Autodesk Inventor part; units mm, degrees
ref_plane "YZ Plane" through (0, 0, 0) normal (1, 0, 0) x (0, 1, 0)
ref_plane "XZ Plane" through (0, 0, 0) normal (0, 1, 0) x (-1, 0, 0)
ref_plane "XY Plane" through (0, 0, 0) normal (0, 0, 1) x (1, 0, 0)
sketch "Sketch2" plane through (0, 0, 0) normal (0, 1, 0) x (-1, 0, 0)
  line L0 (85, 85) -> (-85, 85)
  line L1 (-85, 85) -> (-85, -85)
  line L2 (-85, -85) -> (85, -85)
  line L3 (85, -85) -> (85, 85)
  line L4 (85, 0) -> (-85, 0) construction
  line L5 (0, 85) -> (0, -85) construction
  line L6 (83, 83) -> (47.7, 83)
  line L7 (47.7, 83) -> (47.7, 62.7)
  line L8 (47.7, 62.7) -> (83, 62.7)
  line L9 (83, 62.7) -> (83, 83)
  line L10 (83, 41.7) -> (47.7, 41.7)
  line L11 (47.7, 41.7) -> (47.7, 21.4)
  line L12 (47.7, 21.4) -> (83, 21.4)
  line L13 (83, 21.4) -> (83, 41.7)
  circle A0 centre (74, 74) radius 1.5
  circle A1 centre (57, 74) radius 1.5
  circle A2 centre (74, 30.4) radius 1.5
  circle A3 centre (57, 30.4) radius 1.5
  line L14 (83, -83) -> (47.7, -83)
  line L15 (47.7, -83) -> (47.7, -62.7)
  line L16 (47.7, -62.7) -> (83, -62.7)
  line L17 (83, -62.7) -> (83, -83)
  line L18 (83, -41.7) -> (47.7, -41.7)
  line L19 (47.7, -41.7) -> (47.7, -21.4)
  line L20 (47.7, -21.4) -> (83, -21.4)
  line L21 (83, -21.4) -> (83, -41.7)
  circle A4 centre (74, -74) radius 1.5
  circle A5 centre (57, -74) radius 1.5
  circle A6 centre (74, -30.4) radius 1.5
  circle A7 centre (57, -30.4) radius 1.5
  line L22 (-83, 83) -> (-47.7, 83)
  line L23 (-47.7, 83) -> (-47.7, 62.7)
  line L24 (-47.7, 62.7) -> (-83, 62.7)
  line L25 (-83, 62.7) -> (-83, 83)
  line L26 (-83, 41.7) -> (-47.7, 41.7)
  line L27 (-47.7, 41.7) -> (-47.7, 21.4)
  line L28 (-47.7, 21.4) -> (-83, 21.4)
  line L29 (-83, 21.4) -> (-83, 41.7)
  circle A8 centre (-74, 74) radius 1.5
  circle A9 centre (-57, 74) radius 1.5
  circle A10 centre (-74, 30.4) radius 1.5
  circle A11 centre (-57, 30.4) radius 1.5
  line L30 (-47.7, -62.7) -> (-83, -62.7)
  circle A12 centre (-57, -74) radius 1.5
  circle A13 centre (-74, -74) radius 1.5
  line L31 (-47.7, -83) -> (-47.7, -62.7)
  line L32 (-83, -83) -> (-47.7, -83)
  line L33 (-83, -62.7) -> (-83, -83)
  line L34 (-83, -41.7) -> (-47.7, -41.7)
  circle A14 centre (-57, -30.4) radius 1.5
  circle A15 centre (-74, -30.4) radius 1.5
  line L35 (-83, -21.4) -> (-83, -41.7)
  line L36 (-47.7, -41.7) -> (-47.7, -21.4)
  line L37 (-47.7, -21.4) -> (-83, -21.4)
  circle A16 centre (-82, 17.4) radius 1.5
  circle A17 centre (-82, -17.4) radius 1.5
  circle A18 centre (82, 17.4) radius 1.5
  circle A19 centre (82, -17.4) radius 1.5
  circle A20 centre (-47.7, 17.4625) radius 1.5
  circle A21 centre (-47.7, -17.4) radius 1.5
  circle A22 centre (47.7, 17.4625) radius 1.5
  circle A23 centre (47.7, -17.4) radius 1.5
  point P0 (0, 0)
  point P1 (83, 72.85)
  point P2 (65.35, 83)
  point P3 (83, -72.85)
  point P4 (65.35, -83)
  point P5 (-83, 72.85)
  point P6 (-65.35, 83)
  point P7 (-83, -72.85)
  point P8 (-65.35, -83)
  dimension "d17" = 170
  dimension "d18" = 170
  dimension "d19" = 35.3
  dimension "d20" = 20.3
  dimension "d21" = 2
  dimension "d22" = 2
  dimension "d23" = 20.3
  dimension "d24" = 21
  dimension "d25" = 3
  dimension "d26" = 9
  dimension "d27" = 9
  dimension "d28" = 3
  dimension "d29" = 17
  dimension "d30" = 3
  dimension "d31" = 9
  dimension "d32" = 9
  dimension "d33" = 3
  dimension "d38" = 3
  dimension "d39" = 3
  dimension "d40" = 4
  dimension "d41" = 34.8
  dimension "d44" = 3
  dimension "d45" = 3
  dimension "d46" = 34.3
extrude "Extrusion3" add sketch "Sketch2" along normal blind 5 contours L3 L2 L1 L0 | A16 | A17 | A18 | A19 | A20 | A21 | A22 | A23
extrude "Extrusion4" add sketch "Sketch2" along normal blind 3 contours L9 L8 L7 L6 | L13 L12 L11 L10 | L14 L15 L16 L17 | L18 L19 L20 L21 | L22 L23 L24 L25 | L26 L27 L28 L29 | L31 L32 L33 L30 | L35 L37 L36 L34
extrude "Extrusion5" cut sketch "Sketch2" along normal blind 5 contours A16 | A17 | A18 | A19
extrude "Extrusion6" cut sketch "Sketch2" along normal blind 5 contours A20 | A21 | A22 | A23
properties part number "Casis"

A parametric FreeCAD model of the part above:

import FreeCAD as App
import Part
import Sketcher

V = App.Vector
Q = App.Units.Quantity

doc = App.newDocument("Part")
body = doc.addObject("PartDesign::Body", "Body")

sketch1 = body.newObject("Sketcher::SketchObject", "Sketch")
sketch1.AttachmentSupport = (doc.getObject("XZ_Plane"), [""])
sketch1.MapMode = "FlatFace"
sketch1.addGeometry([
    Part.LineSegment(V(-85, -85, 0), V(-85, 85, 0)),
    Part.LineSegment(V(-85, 85, 0), V(85, 85, 0)),
    Part.LineSegment(V(85, 85, 0), V(85, -85, 0)),
    Part.LineSegment(V(85, -85, 0), V(-85, -85, 0)),
    Part.LineSegment(V(83, -63, 0), V(48, -63, 0)),
    Part.LineSegment(V(48, -63, 0), V(48, -83, 0)),
    Part.LineSegment(V(48, -83, 0), V(83, -83, 0)),
    Part.LineSegment(V(83, -83, 0), V(83, -63, 0)),
    Part.LineSegment(V(48, -42, 0), V(83, -42, 0)),
    Part.LineSegment(V(83, -42, 0), V(83, -21, 0)),
    Part.LineSegment(V(83, -21, 0), V(48, -21, 0)),
    Part.LineSegment(V(48, -21, 0), V(48, -42, 0)),
    Part.LineSegment(V(-83, -63, 0), V(-83, -83, 0)),
    Part.LineSegment(V(-83, -83, 0), V(-48, -83, 0)),
    Part.LineSegment(V(-48, -83, 0), V(-48, -63, 0)),
    Part.LineSegment(V(-48, -63, 0), V(-83, -63, 0)),
    Part.LineSegment(V(-83, -21, 0), V(-83, -42, 0)),
    Part.LineSegment(V(-83, -42, 0), V(-48, -42, 0)),
    Part.LineSegment(V(-48, -42, 0), V(-48, -21, 0)),
    Part.LineSegment(V(-48, -21, 0), V(-83, -21, 0)),
    Part.LineSegment(V(83, 21, 0), V(83, 42, 0)),
    Part.LineSegment(V(83, 42, 0), V(48, 42, 0)),
    Part.LineSegment(V(48, 42, 0), V(48, 21, 0)),
    Part.LineSegment(V(48, 21, 0), V(83, 21, 0)),
    Part.LineSegment(V(83, 63, 0), V(83, 83, 0)),
    Part.LineSegment(V(83, 83, 0), V(48, 83, 0)),
    Part.LineSegment(V(48, 83, 0), V(48, 63, 0)),
    Part.LineSegment(V(48, 63, 0), V(83, 63, 0)),
    Part.LineSegment(V(-48, 42, 0), V(-83, 42, 0)),
    Part.LineSegment(V(-83, 42, 0), V(-83, 21, 0)),
    Part.LineSegment(V(-83, 21, 0), V(-48, 21, 0)),
    Part.LineSegment(V(-48, 21, 0), V(-48, 42, 0)),
    Part.LineSegment(V(-48, 83, 0), V(-83, 83, 0)),
    Part.LineSegment(V(-83, 83, 0), V(-83, 63, 0)),
    Part.LineSegment(V(-83, 63, 0), V(-48, 63, 0)),
    Part.LineSegment(V(-48, 63, 0), V(-48, 83, 0)),
], False)
sketch1.addConstraint([
    Sketcher.Constraint("Coincident", 0, 2, 1, 1),
    Sketcher.Constraint("Coincident", 1, 2, 2, 1),
    Sketcher.Constraint("Coincident", 2, 2, 3, 1),
    Sketcher.Constraint("Coincident", 3, 2, 0, 1),
    Sketcher.Constraint("Coincident", 4, 2, 5, 1),
    Sketcher.Constraint("Coincident", 5, 2, 6, 1),
    Sketcher.Constraint("Coincident", 6, 2, 7, 1),
    Sketcher.Constraint("Coincident", 7, 2, 4, 1),
    Sketcher.Constraint("Coincident", 8, 2, 9, 1),
    Sketcher.Constraint("Coincident", 9, 2, 10, 1),
    Sketcher.Constraint("Coincident", 10, 2, 11, 1),
    Sketcher.Constraint("Coincident", 11, 2, 8, 1),
    Sketcher.Constraint("Coincident", 12, 2, 13, 1),
    Sketcher.Constraint("Coincident", 13, 2, 14, 1),
    Sketcher.Constraint("Coincident", 14, 2, 15, 1),
    Sketcher.Constraint("Coincident", 15, 2, 12, 1),
    Sketcher.Constraint("Coincident", 16, 2, 17, 1),
    Sketcher.Constraint("Coincident", 17, 2, 18, 1),
    Sketcher.Constraint("Coincident", 18, 2, 19, 1),
    Sketcher.Constraint("Coincident", 19, 2, 16, 1),
    Sketcher.Constraint("Coincident", 20, 2, 21, 1),
    Sketcher.Constraint("Coincident", 21, 2, 22, 1),
    Sketcher.Constraint("Coincident", 22, 2, 23, 1),
    Sketcher.Constraint("Coincident", 23, 2, 20, 1),
    Sketcher.Constraint("Coincident", 24, 2, 25, 1),
    Sketcher.Constraint("Coincident", 25, 2, 26, 1),
    Sketcher.Constraint("Coincident", 26, 2, 27, 1),
    Sketcher.Constraint("Coincident", 27, 2, 24, 1),
    Sketcher.Constraint("Coincident", 28, 2, 29, 1),
    Sketcher.Constraint("Coincident", 29, 2, 30, 1),
    Sketcher.Constraint("Coincident", 30, 2, 31, 1),
    Sketcher.Constraint("Coincident", 31, 2, 28, 1),
    Sketcher.Constraint("Coincident", 32, 2, 33, 1),
    Sketcher.Constraint("Coincident", 33, 2, 34, 1),
    Sketcher.Constraint("Coincident", 34, 2, 35, 1),
    Sketcher.Constraint("Coincident", 35, 2, 32, 1),
    Sketcher.Constraint("Vertical", 0),
    Sketcher.Constraint("Horizontal", 1),
    Sketcher.Constraint("Vertical", 2),
    Sketcher.Constraint("Horizontal", 3),
    Sketcher.Constraint("Horizontal", 4),
    Sketcher.Constraint("Vertical", 5),
    Sketcher.Constraint("Horizontal", 6),
    Sketcher.Constraint("Vertical", 7),
    Sketcher.Constraint("Horizontal", 8),
    Sketcher.Constraint("Vertical", 9),
    Sketcher.Constraint("Horizontal", 10),
    Sketcher.Constraint("Vertical", 11),
    Sketcher.Constraint("Vertical", 12),
    Sketcher.Constraint("Horizontal", 13),
    Sketcher.Constraint("Vertical", 14),
    Sketcher.Constraint("Horizontal", 15),
    Sketcher.Constraint("Vertical", 16),
    Sketcher.Constraint("Horizontal", 17),
    Sketcher.Constraint("Vertical", 18),
    Sketcher.Constraint("Horizontal", 19),
    Sketcher.Constraint("Vertical", 20),
    Sketcher.Constraint("Horizontal", 21),
    Sketcher.Constraint("Vertical", 22),
    Sketcher.Constraint("Horizontal", 23),
    Sketcher.Constraint("Vertical", 24),
    Sketcher.Constraint("Horizontal", 25),
    Sketcher.Constraint("Vertical", 26),
    Sketcher.Constraint("Horizontal", 27),
    Sketcher.Constraint("Horizontal", 28),
    Sketcher.Constraint("Vertical", 29),
    Sketcher.Constraint("Horizontal", 30),
    Sketcher.Constraint("Vertical", 31),
    Sketcher.Constraint("Horizontal", 32),
    Sketcher.Constraint("Vertical", 33),
    Sketcher.Constraint("Horizontal", 34),
    Sketcher.Constraint("Vertical", 35),
    Sketcher.Constraint("Symmetric", 0, 2, 2, 2, -1, 1),
    Sketcher.Constraint("Symmetric", 16, 2, 20, 2, -1, 1),
    Sketcher.Constraint("Symmetric", 18, 2, 22, 2, -1, 1),
    Sketcher.Constraint("Symmetric", 12, 2, 24, 2, -1, 1),
    Sketcher.Constraint("Symmetric", 14, 2, 26, 2, -1, 1),
    Sketcher.Constraint("Symmetric", 8, 2, 28, 2, -1, 1),
    Sketcher.Constraint("Symmetric", 10, 2, 30, 2, -1, 1),
    Sketcher.Constraint("Symmetric", 6, 2, 32, 2, -1, 1),
    Sketcher.Constraint("Symmetric", 4, 2, 34, 2, -1, 1),
    Sketcher.Constraint("Symmetric", 6, 2, 12, 2, -2),
    Sketcher.Constraint("Symmetric", 4, 2, 14, 2, -2),
    Sketcher.Constraint("Symmetric", 8, 2, 16, 2, -2),
    Sketcher.Constraint("Symmetric", 10, 2, 18, 2, -2),
    Sketcher.Constraint("Vertical", 7, 2, 8, 2),
    Sketcher.Constraint("Vertical", 5, 2, 10, 2),
    Sketcher.Constraint("Equal", 3, 0),
    Sketcher.Constraint("Equal", 7, 9),
    Sketcher.Constraint("DistanceX", 1, 1, 1, 2, Q("170 mm")),
    Sketcher.Constraint("DistanceX", 4, 2, 4, 1, Q("35.3 mm")),
    Sketcher.Constraint("DistanceY", 5, 2, 5, 1, Q("20.3 mm")),
    Sketcher.Constraint("DistanceY", 2, 2, 5, 2, Q("2 mm")),
    Sketcher.Constraint("DistanceX", 6, 2, 2, 2, Q("2 mm")),
    Sketcher.Constraint("DistanceY", 7, 2, 8, 2, Q("21 mm")),
])
pad1 = body.newObject("PartDesign::Pad", "Pad")
pad1.Profile = sketch1
pad1.Length = 5
pad1.Reversed = True

sketch2 = body.newObject("Sketcher::SketchObject", "Sketch001")
sketch2.AttachmentSupport = (doc.getObject("XZ_Plane"), [""])
sketch2.MapMode = "FlatFace"
sketch2.addGeometry([
    Part.LineSegment(V(-83, 62.7, 0), V(-83, 83, 0)),
    Part.LineSegment(V(-83, 83, 0), V(-47.7, 83, 0)),
    Part.LineSegment(V(-47.7, 83, 0), V(-47.7, 62.7, 0)),
    Part.LineSegment(V(-47.7, 62.7, 0), V(-83, 62.7, 0)),
    Part.Circle(V(-57, 74, 0), V(0, 0, 1), 1.5),
    Part.Circle(V(-74, 74, 0), V(0, 0, 1), 1.5),
    Part.LineSegment(V(-83, 21.4, 0), V(-83, 41.7, 0)),
    Part.LineSegment(V(-83, 41.7, 0), V(-47.7, 41.7, 0)),
    Part.LineSegment(V(-47.7, 41.7, 0), V(-47.7, 21.4, 0)),
    Part.LineSegment(V(-47.7, 21.4, 0), V(-83, 21.4, 0)),
    Part.Circle(V(-57, 30.4, 0), V(0, 0, 1), 1.5),
    Part.Circle(V(-74, 30.4, 0), V(0, 0, 1), 1.5),
    Part.LineSegment(V(-47.7, -83, 0), V(-83, -83, 0)),
    Part.LineSegment(V(-83, -83, 0), V(-83, -62.7, 0)),
    Part.LineSegment(V(-83, -62.7, 0), V(-47.7, -62.7, 0)),
    Part.LineSegment(V(-47.7, -62.7, 0), V(-47.7, -83, 0)),
    Part.Circle(V(-57, -74, 0), V(0, 0, 1), 1.5),
    Part.Circle(V(-74, -74, 0), V(0, 0, 1), 1.5),
    Part.LineSegment(V(-47.7, -41.7, 0), V(-83, -41.7, 0)),
    Part.LineSegment(V(-83, -41.7, 0), V(-83, -21.4, 0)),
    Part.LineSegment(V(-83, -21.4, 0), V(-47.7, -21.4, 0)),
    Part.LineSegment(V(-47.7, -21.4, 0), V(-47.7, -41.7, 0)),
    Part.Circle(V(-57, -30.4, 0), V(0, 0, 1), 1.5),
    Part.Circle(V(-74, -30.4, 0), V(0, 0, 1), 1.5),
    Part.LineSegment(V(47.7, 83, 0), V(83, 83, 0)),
    Part.LineSegment(V(83, 83, 0), V(83, 62.7, 0)),
    Part.LineSegment(V(83, 62.7, 0), V(47.7, 62.7, 0)),
    Part.LineSegment(V(47.7, 62.7, 0), V(47.7, 83, 0)),
    Part.Circle(V(74, 74, 0), V(0, 0, 1), 1.5),
    Part.Circle(V(57, 74, 0), V(0, 0, 1), 1.5),
    Part.LineSegment(V(47.7, 41.7, 0), V(83, 41.7, 0)),
    Part.LineSegment(V(83, 41.7, 0), V(83, 21.4, 0)),
    Part.LineSegment(V(83, 21.4, 0), V(47.7, 21.4, 0)),
    Part.LineSegment(V(47.7, 21.4, 0), V(47.7, 41.7, 0)),
    Part.Circle(V(74, 30.4, 0), V(0, 0, 1), 1.5),
    Part.Circle(V(57, 30.4, 0), V(0, 0, 1), 1.5),
    Part.LineSegment(V(47.7, -83, 0), V(47.7, -62.7, 0)),
    Part.LineSegment(V(47.7, -62.7, 0), V(83, -62.7, 0)),
    Part.LineSegment(V(83, -62.7, 0), V(83, -83, 0)),
    Part.LineSegment(V(83, -83, 0), V(47.7, -83, 0)),
    Part.Circle(V(74, -74, 0), V(0, 0, 1), 1.5),
    Part.Circle(V(57, -74, 0), V(0, 0, 1), 1.5),
    Part.LineSegment(V(83, -21.4, 0), V(83, -41.7, 0)),
    Part.LineSegment(V(83, -41.7, 0), V(47.7, -41.7, 0)),
    Part.LineSegment(V(47.7, -41.7, 0), V(47.7, -21.4, 0)),
    Part.LineSegment(V(47.7, -21.4, 0), V(83, -21.4, 0)),
    Part.Circle(V(74, -30.4, 0), V(0, 0, 1), 1.5),
    Part.Circle(V(57, -30.4, 0), V(0, 0, 1), 1.5),
], False)
sketch2.addConstraint([
    Sketcher.Constraint("Coincident", 0, 2, 1, 1),
    Sketcher.Constraint("Coincident", 1, 2, 2, 1),
    Sketcher.Constraint("Coincident", 2, 2, 3, 1),
    Sketcher.Constraint("Coincident", 3, 2, 0, 1),
    Sketcher.Constraint("Coincident", 6, 2, 7, 1),
    Sketcher.Constraint("Coincident", 7, 2, 8, 1),
    Sketcher.Constraint("Coincident", 8, 2, 9, 1),
    Sketcher.Constraint("Coincident", 9, 2, 6, 1),
    Sketcher.Constraint("Coincident", 12, 2, 13, 1),
    Sketcher.Constraint("Coincident", 13, 2, 14, 1),
    Sketcher.Constraint("Coincident", 14, 2, 15, 1),
    Sketcher.Constraint("Coincident", 15, 2, 12, 1),
    Sketcher.Constraint("Coincident", 18, 2, 19, 1),
    Sketcher.Constraint("Coincident", 19, 2, 20, 1),
    Sketcher.Constraint("Coincident", 20, 2, 21, 1),
    Sketcher.Constraint("Coincident", 21, 2, 18, 1),
    Sketcher.Constraint("Coincident", 24, 2, 25, 1),
    Sketcher.Constraint("Coincident", 25, 2, 26, 1),
    Sketcher.Constraint("Coincident", 26, 2, 27, 1),
    Sketcher.Constraint("Coincident", 27, 2, 24, 1),
    Sketcher.Constraint("Coincident", 30, 2, 31, 1),
    Sketcher.Constraint("Coincident", 31, 2, 32, 1),
    Sketcher.Constraint("Coincident", 32, 2, 33, 1),
    Sketcher.Constraint("Coincident", 33, 2, 30, 1),
    Sketcher.Constraint("Coincident", 36, 2, 37, 1),
    Sketcher.Constraint("Coincident", 37, 2, 38, 1),
    Sketcher.Constraint("Coincident", 38, 2, 39, 1),
    Sketcher.Constraint("Coincident", 39, 2, 36, 1),
    Sketcher.Constraint("Coincident", 42, 2, 43, 1),
    Sketcher.Constraint("Coincident", 43, 2, 44, 1),
    Sketcher.Constraint("Coincident", 44, 2, 45, 1),
    Sketcher.Constraint("Coincident", 45, 2, 42, 1),
    Sketcher.Constraint("Vertical", 0),
    Sketcher.Constraint("Horizontal", 1),
    Sketcher.Constraint("Vertical", 2),
    Sketcher.Constraint("Horizontal", 3),
    Sketcher.Constraint("Vertical", 6),
    Sketcher.Constraint("Horizontal", 7),
    Sketcher.Constraint("Vertical", 8),
    Sketcher.Constraint("Horizontal", 9),
    Sketcher.Constraint("Horizontal", 12),
    Sketcher.Constraint("Vertical", 13),
    Sketcher.Constraint("Horizontal", 14),
    Sketcher.Constraint("Vertical", 15),
    Sketcher.Constraint("Horizontal", 18),
    Sketcher.Constraint("Vertical", 19),
    Sketcher.Constraint("Horizontal", 20),
    Sketcher.Constraint("Vertical", 21),
    Sketcher.Constraint("Horizontal", 24),
    Sketcher.Constraint("Vertical", 25),
    Sketcher.Constraint("Horizontal", 26),
    Sketcher.Constraint("Vertical", 27),
    Sketcher.Constraint("Horizontal", 30),
    Sketcher.Constraint("Vertical", 31),
    Sketcher.Constraint("Horizontal", 32),
    Sketcher.Constraint("Vertical", 33),
    Sketcher.Constraint("Vertical", 36),
    Sketcher.Constraint("Horizontal", 37),
    Sketcher.Constraint("Vertical", 38),
    Sketcher.Constraint("Horizontal", 39),
    Sketcher.Constraint("Vertical", 42),
    Sketcher.Constraint("Horizontal", 43),
    Sketcher.Constraint("Vertical", 44),
    Sketcher.Constraint("Horizontal", 45),
    Sketcher.Constraint("Equal", 4, 5),
    Sketcher.Constraint("Equal", 5, 10),
    Sketcher.Constraint("Equal", 10, 11),
    Sketcher.Constraint("Equal", 11, 16),
    Sketcher.Constraint("Equal", 16, 17),
    Sketcher.Constraint("Equal", 17, 22),
    Sketcher.Constraint("Equal", 22, 23),
    Sketcher.Constraint("Equal", 23, 28),
    Sketcher.Constraint("Equal", 28, 29),
    Sketcher.Constraint("Equal", 29, 34),
    Sketcher.Constraint("Equal", 34, 35),
    Sketcher.Constraint("Equal", 35, 40),
    Sketcher.Constraint("Equal", 40, 41),
    Sketcher.Constraint("Equal", 41, 46),
    Sketcher.Constraint("Equal", 46, 47),
    Sketcher.Constraint("Symmetric", 17, 3, 28, 3, -1, 1),
    Sketcher.Constraint("Symmetric", 16, 3, 29, 3, -1, 1),
    Sketcher.Constraint("Symmetric", 23, 3, 34, 3, -1, 1),
    Sketcher.Constraint("Symmetric", 22, 3, 35, 3, -1, 1),
    Sketcher.Constraint("Symmetric", 5, 3, 40, 3, -1, 1),
    Sketcher.Constraint("Symmetric", 4, 3, 41, 3, -1, 1),
    Sketcher.Constraint("Symmetric", 11, 3, 46, 3, -1, 1),
    Sketcher.Constraint("Symmetric", 10, 3, 47, 3, -1, 1),
    Sketcher.Constraint("Symmetric", 12, 2, 24, 2, -1, 1),
    Sketcher.Constraint("Symmetric", 14, 2, 26, 2, -1, 1),
    Sketcher.Constraint("Symmetric", 18, 2, 30, 2, -1, 1),
    Sketcher.Constraint("Symmetric", 20, 2, 32, 2, -1, 1),
    Sketcher.Constraint("Symmetric", 2, 2, 36, 2, -1, 1),
    Sketcher.Constraint("Symmetric", 0, 2, 38, 2, -1, 1),
    Sketcher.Constraint("Symmetric", 6, 2, 42, 2, -1, 1),
    Sketcher.Constraint("Symmetric", 8, 2, 44, 2, -1, 1),
    Sketcher.Constraint("Symmetric", 5, 3, 28, 3, -2),
    Sketcher.Constraint("Symmetric", 4, 3, 29, 3, -2),
    Sketcher.Constraint("Symmetric", 11, 3, 34, 3, -2),
    Sketcher.Constraint("Symmetric", 10, 3, 35, 3, -2),
    Sketcher.Constraint("Symmetric", 0, 2, 24, 2, -2),
    Sketcher.Constraint("Symmetric", 2, 2, 26, 2, -2),
    Sketcher.Constraint("Symmetric", 6, 2, 30, 2, -2),
    Sketcher.Constraint("Symmetric", 8, 2, 32, 2, -2),
    Sketcher.Constraint("Horizontal", 4, 3, 5, 3),
    Sketcher.Constraint("Horizontal", 10, 3, 11, 3),
    Sketcher.Constraint("Vertical", 4, 3, 10, 3),
    Sketcher.Constraint("Vertical", 5, 3, 11, 3),
    Sketcher.Constraint("Vertical", 3, 2, 6, 2),
    Sketcher.Constraint("Vertical", 2, 2, 7, 2),
    Sketcher.Constraint("Equal", 2, 6),
    Sketcher.Constraint("Diameter", 4, Q("3 mm")),
    Sketcher.Constraint("DistanceX", 1, 1, 1, 2, Q("35.3 mm")),
    Sketcher.Constraint("DistanceY", 0, 1, 0, 2, Q("20.3 mm")),
    Sketcher.Constraint("DistanceX", 5, 3, 4, 3, Q("17 mm")),
    Sketcher.Constraint("DistanceX", 0, 2, 5, 3, Q("9 mm")),
    Sketcher.Constraint("DistanceY", 5, 3, 0, 2, Q("9 mm")),
    Sketcher.Constraint("DistanceY", 6, 2, 3, 2, Q("21 mm")),
    Sketcher.Constraint("DistanceY", 8, 2, 10, 3, Q("9 mm")),
    Sketcher.Constraint("DistanceX", 4, 3, -1, 1, Q("57 mm")),
    Sketcher.Constraint("DistanceY", -1, 1, 4, 3, Q("74 mm")),
])
pad2 = body.newObject("PartDesign::Pad", "Pad001")
pad2.Profile = sketch2
pad2.Length = 3
pad2.Reversed = True

sketch3 = body.newObject("Sketcher::SketchObject", "Sketch002")
sketch3.AttachmentSupport = (doc.getObject("XZ_Plane"), [""])
sketch3.MapMode = "FlatFace"
sketch3.addGeometry([
    Part.Circle(V(82, 17.4, 0), V(0, 0, 1), 1.5),
    Part.Circle(V(82, -17.4, 0), V(0, 0, 1), 1.5),
    Part.Circle(V(-82, 17.4, 0), V(0, 0, 1), 1.5),
    Part.Circle(V(-82, -17.4, 0), V(0, 0, 1), 1.5),
], False)
sketch3.addConstraint([
    Sketcher.Constraint("Equal", 0, 1),
    Sketcher.Constraint("Equal", 1, 2),
    Sketcher.Constraint("Equal", 2, 3),
    Sketcher.Constraint("Symmetric", 1, 3, 2, 3, -1, 1),
    Sketcher.Constraint("Symmetric", 0, 3, 3, 3, -1, 1),
    Sketcher.Constraint("Symmetric", 0, 3, 2, 3, -2),
    Sketcher.Constraint("Diameter", 0, Q("3 mm")),
    Sketcher.Constraint("DistanceY", 1, 3, 0, 3, Q("34.8 mm")),
    Sketcher.Constraint("DistanceX", -1, 1, 0, 3, Q("82 mm")),
])
pocket1 = body.newObject("PartDesign::Pocket", "Pocket")
pocket1.Profile = sketch3
pocket1.Length = 5

sketch4 = body.newObject("Sketcher::SketchObject", "Sketch003")
sketch4.AttachmentSupport = (doc.getObject("XZ_Plane"), [""])
sketch4.MapMode = "FlatFace"
sketch4.addGeometry([
    Part.Circle(V(47.7, 17.5, 0), V(0, 0, 1), 1.5),
    Part.Circle(V(47.7, -17.4, 0), V(0, 0, 1), 1.5),
    Part.Circle(V(-47.7, 17.5, 0), V(0, 0, 1), 1.5),
    Part.Circle(V(-47.7, -17.4, 0), V(0, 0, 1), 1.5),
], False)
sketch4.addConstraint([
    Sketcher.Constraint("Equal", 0, 1),
    Sketcher.Constraint("Equal", 1, 2),
    Sketcher.Constraint("Equal", 2, 3),
    Sketcher.Constraint("Symmetric", 0, 3, 2, 3, -2),
    Sketcher.Constraint("Symmetric", 1, 3, 3, 3, -2),
    Sketcher.Constraint("Vertical", 0, 3, 1, 3),
    Sketcher.Constraint("Diameter", 0, Q("3 mm")),
    Sketcher.Constraint("DistanceX", -1, 1, 0, 3, Q("47.7 mm")),
    Sketcher.Constraint("DistanceY", 1, 3, -1, 1, Q("17.4 mm")),
    Sketcher.Constraint("DistanceY", -1, 1, 0, 3, Q("17.4625 mm")),
])
pocket2 = body.newObject("PartDesign::Pocket", "Pocket001")
pocket2.Profile = sketch4
pocket2.Length = 5

doc.recompute()
